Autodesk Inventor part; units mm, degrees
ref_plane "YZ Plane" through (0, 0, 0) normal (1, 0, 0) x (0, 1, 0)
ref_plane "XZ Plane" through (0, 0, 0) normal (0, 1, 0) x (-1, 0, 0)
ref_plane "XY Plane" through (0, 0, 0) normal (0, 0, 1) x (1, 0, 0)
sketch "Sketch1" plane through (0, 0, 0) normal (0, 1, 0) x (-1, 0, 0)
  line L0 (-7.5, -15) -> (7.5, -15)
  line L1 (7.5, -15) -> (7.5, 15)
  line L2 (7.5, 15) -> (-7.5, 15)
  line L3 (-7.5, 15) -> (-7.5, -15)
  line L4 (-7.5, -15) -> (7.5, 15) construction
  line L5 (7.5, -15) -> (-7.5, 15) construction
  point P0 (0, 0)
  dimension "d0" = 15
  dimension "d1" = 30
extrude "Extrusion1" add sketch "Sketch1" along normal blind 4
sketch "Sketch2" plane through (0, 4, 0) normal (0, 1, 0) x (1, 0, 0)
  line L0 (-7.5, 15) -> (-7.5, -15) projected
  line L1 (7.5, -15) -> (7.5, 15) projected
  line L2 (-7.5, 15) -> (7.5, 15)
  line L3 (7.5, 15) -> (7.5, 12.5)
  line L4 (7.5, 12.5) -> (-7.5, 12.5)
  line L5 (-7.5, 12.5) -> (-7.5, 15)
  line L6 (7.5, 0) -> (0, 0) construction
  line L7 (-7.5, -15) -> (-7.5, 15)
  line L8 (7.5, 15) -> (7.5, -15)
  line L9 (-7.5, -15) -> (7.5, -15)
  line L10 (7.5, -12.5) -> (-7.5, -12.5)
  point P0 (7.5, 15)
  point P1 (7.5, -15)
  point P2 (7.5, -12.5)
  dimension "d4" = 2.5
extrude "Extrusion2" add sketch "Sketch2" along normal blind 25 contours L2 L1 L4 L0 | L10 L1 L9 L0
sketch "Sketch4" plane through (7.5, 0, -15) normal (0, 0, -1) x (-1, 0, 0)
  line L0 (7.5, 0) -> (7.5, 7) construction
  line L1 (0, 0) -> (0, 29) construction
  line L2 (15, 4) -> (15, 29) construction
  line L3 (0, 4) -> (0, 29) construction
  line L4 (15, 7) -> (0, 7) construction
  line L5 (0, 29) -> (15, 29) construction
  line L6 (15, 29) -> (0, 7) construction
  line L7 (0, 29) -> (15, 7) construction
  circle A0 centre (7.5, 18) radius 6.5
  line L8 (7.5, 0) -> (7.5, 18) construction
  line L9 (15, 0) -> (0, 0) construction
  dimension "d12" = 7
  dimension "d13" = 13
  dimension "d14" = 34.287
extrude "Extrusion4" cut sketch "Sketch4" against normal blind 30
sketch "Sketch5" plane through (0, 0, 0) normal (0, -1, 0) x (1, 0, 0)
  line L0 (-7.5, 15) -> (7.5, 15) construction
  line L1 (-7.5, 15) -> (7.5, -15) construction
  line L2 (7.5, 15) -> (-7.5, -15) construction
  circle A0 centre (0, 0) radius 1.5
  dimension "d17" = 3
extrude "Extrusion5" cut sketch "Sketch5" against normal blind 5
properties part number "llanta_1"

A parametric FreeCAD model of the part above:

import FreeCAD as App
import Part
import Sketcher
from FreeCAD import Vector


def add_polygon(sketch, points):
    """Adds a closed chain of lines whose ends are joined by coincident constraints."""
    first, n = sketch.GeometryCount, len(points)
    for a, b in zip(points, points[1:] + points[:1]):
        sketch.addGeometry(Part.LineSegment(App.Vector(*a, 0), App.Vector(*b, 0)), False)
    for i in range(n):
        sketch.addConstraint(Sketcher.Constraint("Coincident", first + i, 2, first + (i + 1) % n, 1))

doc = App.newDocument("Part")
body = doc.addObject("PartDesign::Body", "Body")

sketch1 = body.newObject("Sketcher::SketchObject", "Sketch")
sketch1.AttachmentSupport = (doc.getObject("XZ_Plane"), [""])
sketch1.MapMode = "FlatFace"
add_polygon(sketch1, [(8, 15), (8, -15), (-8, -15), (-8, 15)])
sketch1.addConstraint([
    Sketcher.Constraint("Vertical", 0),
    Sketcher.Constraint("Horizontal", 1),
    Sketcher.Constraint("Vertical", 2),
    Sketcher.Constraint("Horizontal", 3),
    Sketcher.Constraint("Symmetric", 0, 2, 2, 2, -1, 1),
    Sketcher.Constraint("DistanceX", 1, 2, 1, 1, 15.0),
    Sketcher.Constraint("DistanceY", 0, 2, 0, 1, 30.0),
])
pad1 = body.newObject("PartDesign::Pad", "Pad")
pad1.Profile = sketch1
pad1.Length = 4
pad1.Reversed = True

sketch2 = body.newObject("Sketcher::SketchObject", "Sketch001")
sketch2.AttachmentSupport = (doc.getObject("XZ_Plane"), [""])
sketch2.MapMode = "FlatFace"
sketch2.AttachmentOffset = App.Placement(Vector(0, 0, -4), App.Rotation())
add_polygon(sketch2, [(7.5, -15), (-7.5, -15), (-7.5, -12.5), (7.5, -12.5)])
add_polygon(sketch2, [(7.5, 12.5), (-7.5, 12.5), (-7.5, 15), (7.5, 15)])
sketch2.addConstraint([
    Sketcher.Constraint("Horizontal", 0),
    Sketcher.Constraint("Vertical", 1),
    Sketcher.Constraint("Horizontal", 2),
    Sketcher.Constraint("Vertical", 3),
    Sketcher.Constraint("Horizontal", 4),
    Sketcher.Constraint("Vertical", 5),
    Sketcher.Constraint("Horizontal", 6),
    Sketcher.Constraint("Vertical", 7),
    Sketcher.Constraint("Symmetric", 2, 2, 4, 2, -1, 1),
    Sketcher.Constraint("Symmetric", 0, 2, 6, 2, -1, 1),
    Sketcher.Constraint("Vertical", 1, 2, 4, 2),
    Sketcher.Constraint("DistanceY", 1, 1, 1, 2, 2.5),
    Sketcher.Constraint("DistanceX", 0, 2, 0, 1, 15.0),
    Sketcher.Constraint("DistanceY", 0, 2, -1, 1, 15.0),
])
pad2 = body.newObject("PartDesign::Pad", "Pad001")
pad2.Profile = sketch2
pad2.Length = 25
pad2.Reversed = True

sketch3 = body.newObject("Sketcher::SketchObject", "Sketch002")
sketch3.AttachmentSupport = (doc.getObject("XY_Plane"), [""])
sketch3.MapMode = "FlatFace"
sketch3.AttachmentOffset = App.Placement(Vector(0, 0, -15), App.Rotation())
sketch3.addGeometry(Part.Circle(Vector(0, 18, 0), Vector(0, 0, 1), 6), False)
sketch3.addConstraint([
    Sketcher.Constraint("PointOnObject", 0, 3, -2),
    Sketcher.Constraint("Diameter", 0, 13.0),
    Sketcher.Constraint("DistanceY", -1, 1, 0, 3, 18.0),
])
pocket1 = body.newObject("PartDesign::Pocket", "Pocket")
pocket1.Profile = sketch3
pocket1.Length = 30
pocket1.Reversed = True

sketch4 = body.newObject("Sketcher::SketchObject", "Sketch003")
sketch4.AttachmentSupport = (doc.getObject("XZ_Plane"), [""])
sketch4.MapMode = "FlatFace"
sketch4.addGeometry(Part.Circle(Vector(0, 0, 0), Vector(0, 0, 1), 1.5), False)
sketch4.addConstraint([
    Sketcher.Constraint("Coincident", 0, 3, -1, 1),
    Sketcher.Constraint("Diameter", 0, 3.0),
])
pocket2 = body.newObject("PartDesign::Pocket", "Pocket001")
pocket2.Profile = sketch4
pocket2.Length = 5

doc.recompute()
